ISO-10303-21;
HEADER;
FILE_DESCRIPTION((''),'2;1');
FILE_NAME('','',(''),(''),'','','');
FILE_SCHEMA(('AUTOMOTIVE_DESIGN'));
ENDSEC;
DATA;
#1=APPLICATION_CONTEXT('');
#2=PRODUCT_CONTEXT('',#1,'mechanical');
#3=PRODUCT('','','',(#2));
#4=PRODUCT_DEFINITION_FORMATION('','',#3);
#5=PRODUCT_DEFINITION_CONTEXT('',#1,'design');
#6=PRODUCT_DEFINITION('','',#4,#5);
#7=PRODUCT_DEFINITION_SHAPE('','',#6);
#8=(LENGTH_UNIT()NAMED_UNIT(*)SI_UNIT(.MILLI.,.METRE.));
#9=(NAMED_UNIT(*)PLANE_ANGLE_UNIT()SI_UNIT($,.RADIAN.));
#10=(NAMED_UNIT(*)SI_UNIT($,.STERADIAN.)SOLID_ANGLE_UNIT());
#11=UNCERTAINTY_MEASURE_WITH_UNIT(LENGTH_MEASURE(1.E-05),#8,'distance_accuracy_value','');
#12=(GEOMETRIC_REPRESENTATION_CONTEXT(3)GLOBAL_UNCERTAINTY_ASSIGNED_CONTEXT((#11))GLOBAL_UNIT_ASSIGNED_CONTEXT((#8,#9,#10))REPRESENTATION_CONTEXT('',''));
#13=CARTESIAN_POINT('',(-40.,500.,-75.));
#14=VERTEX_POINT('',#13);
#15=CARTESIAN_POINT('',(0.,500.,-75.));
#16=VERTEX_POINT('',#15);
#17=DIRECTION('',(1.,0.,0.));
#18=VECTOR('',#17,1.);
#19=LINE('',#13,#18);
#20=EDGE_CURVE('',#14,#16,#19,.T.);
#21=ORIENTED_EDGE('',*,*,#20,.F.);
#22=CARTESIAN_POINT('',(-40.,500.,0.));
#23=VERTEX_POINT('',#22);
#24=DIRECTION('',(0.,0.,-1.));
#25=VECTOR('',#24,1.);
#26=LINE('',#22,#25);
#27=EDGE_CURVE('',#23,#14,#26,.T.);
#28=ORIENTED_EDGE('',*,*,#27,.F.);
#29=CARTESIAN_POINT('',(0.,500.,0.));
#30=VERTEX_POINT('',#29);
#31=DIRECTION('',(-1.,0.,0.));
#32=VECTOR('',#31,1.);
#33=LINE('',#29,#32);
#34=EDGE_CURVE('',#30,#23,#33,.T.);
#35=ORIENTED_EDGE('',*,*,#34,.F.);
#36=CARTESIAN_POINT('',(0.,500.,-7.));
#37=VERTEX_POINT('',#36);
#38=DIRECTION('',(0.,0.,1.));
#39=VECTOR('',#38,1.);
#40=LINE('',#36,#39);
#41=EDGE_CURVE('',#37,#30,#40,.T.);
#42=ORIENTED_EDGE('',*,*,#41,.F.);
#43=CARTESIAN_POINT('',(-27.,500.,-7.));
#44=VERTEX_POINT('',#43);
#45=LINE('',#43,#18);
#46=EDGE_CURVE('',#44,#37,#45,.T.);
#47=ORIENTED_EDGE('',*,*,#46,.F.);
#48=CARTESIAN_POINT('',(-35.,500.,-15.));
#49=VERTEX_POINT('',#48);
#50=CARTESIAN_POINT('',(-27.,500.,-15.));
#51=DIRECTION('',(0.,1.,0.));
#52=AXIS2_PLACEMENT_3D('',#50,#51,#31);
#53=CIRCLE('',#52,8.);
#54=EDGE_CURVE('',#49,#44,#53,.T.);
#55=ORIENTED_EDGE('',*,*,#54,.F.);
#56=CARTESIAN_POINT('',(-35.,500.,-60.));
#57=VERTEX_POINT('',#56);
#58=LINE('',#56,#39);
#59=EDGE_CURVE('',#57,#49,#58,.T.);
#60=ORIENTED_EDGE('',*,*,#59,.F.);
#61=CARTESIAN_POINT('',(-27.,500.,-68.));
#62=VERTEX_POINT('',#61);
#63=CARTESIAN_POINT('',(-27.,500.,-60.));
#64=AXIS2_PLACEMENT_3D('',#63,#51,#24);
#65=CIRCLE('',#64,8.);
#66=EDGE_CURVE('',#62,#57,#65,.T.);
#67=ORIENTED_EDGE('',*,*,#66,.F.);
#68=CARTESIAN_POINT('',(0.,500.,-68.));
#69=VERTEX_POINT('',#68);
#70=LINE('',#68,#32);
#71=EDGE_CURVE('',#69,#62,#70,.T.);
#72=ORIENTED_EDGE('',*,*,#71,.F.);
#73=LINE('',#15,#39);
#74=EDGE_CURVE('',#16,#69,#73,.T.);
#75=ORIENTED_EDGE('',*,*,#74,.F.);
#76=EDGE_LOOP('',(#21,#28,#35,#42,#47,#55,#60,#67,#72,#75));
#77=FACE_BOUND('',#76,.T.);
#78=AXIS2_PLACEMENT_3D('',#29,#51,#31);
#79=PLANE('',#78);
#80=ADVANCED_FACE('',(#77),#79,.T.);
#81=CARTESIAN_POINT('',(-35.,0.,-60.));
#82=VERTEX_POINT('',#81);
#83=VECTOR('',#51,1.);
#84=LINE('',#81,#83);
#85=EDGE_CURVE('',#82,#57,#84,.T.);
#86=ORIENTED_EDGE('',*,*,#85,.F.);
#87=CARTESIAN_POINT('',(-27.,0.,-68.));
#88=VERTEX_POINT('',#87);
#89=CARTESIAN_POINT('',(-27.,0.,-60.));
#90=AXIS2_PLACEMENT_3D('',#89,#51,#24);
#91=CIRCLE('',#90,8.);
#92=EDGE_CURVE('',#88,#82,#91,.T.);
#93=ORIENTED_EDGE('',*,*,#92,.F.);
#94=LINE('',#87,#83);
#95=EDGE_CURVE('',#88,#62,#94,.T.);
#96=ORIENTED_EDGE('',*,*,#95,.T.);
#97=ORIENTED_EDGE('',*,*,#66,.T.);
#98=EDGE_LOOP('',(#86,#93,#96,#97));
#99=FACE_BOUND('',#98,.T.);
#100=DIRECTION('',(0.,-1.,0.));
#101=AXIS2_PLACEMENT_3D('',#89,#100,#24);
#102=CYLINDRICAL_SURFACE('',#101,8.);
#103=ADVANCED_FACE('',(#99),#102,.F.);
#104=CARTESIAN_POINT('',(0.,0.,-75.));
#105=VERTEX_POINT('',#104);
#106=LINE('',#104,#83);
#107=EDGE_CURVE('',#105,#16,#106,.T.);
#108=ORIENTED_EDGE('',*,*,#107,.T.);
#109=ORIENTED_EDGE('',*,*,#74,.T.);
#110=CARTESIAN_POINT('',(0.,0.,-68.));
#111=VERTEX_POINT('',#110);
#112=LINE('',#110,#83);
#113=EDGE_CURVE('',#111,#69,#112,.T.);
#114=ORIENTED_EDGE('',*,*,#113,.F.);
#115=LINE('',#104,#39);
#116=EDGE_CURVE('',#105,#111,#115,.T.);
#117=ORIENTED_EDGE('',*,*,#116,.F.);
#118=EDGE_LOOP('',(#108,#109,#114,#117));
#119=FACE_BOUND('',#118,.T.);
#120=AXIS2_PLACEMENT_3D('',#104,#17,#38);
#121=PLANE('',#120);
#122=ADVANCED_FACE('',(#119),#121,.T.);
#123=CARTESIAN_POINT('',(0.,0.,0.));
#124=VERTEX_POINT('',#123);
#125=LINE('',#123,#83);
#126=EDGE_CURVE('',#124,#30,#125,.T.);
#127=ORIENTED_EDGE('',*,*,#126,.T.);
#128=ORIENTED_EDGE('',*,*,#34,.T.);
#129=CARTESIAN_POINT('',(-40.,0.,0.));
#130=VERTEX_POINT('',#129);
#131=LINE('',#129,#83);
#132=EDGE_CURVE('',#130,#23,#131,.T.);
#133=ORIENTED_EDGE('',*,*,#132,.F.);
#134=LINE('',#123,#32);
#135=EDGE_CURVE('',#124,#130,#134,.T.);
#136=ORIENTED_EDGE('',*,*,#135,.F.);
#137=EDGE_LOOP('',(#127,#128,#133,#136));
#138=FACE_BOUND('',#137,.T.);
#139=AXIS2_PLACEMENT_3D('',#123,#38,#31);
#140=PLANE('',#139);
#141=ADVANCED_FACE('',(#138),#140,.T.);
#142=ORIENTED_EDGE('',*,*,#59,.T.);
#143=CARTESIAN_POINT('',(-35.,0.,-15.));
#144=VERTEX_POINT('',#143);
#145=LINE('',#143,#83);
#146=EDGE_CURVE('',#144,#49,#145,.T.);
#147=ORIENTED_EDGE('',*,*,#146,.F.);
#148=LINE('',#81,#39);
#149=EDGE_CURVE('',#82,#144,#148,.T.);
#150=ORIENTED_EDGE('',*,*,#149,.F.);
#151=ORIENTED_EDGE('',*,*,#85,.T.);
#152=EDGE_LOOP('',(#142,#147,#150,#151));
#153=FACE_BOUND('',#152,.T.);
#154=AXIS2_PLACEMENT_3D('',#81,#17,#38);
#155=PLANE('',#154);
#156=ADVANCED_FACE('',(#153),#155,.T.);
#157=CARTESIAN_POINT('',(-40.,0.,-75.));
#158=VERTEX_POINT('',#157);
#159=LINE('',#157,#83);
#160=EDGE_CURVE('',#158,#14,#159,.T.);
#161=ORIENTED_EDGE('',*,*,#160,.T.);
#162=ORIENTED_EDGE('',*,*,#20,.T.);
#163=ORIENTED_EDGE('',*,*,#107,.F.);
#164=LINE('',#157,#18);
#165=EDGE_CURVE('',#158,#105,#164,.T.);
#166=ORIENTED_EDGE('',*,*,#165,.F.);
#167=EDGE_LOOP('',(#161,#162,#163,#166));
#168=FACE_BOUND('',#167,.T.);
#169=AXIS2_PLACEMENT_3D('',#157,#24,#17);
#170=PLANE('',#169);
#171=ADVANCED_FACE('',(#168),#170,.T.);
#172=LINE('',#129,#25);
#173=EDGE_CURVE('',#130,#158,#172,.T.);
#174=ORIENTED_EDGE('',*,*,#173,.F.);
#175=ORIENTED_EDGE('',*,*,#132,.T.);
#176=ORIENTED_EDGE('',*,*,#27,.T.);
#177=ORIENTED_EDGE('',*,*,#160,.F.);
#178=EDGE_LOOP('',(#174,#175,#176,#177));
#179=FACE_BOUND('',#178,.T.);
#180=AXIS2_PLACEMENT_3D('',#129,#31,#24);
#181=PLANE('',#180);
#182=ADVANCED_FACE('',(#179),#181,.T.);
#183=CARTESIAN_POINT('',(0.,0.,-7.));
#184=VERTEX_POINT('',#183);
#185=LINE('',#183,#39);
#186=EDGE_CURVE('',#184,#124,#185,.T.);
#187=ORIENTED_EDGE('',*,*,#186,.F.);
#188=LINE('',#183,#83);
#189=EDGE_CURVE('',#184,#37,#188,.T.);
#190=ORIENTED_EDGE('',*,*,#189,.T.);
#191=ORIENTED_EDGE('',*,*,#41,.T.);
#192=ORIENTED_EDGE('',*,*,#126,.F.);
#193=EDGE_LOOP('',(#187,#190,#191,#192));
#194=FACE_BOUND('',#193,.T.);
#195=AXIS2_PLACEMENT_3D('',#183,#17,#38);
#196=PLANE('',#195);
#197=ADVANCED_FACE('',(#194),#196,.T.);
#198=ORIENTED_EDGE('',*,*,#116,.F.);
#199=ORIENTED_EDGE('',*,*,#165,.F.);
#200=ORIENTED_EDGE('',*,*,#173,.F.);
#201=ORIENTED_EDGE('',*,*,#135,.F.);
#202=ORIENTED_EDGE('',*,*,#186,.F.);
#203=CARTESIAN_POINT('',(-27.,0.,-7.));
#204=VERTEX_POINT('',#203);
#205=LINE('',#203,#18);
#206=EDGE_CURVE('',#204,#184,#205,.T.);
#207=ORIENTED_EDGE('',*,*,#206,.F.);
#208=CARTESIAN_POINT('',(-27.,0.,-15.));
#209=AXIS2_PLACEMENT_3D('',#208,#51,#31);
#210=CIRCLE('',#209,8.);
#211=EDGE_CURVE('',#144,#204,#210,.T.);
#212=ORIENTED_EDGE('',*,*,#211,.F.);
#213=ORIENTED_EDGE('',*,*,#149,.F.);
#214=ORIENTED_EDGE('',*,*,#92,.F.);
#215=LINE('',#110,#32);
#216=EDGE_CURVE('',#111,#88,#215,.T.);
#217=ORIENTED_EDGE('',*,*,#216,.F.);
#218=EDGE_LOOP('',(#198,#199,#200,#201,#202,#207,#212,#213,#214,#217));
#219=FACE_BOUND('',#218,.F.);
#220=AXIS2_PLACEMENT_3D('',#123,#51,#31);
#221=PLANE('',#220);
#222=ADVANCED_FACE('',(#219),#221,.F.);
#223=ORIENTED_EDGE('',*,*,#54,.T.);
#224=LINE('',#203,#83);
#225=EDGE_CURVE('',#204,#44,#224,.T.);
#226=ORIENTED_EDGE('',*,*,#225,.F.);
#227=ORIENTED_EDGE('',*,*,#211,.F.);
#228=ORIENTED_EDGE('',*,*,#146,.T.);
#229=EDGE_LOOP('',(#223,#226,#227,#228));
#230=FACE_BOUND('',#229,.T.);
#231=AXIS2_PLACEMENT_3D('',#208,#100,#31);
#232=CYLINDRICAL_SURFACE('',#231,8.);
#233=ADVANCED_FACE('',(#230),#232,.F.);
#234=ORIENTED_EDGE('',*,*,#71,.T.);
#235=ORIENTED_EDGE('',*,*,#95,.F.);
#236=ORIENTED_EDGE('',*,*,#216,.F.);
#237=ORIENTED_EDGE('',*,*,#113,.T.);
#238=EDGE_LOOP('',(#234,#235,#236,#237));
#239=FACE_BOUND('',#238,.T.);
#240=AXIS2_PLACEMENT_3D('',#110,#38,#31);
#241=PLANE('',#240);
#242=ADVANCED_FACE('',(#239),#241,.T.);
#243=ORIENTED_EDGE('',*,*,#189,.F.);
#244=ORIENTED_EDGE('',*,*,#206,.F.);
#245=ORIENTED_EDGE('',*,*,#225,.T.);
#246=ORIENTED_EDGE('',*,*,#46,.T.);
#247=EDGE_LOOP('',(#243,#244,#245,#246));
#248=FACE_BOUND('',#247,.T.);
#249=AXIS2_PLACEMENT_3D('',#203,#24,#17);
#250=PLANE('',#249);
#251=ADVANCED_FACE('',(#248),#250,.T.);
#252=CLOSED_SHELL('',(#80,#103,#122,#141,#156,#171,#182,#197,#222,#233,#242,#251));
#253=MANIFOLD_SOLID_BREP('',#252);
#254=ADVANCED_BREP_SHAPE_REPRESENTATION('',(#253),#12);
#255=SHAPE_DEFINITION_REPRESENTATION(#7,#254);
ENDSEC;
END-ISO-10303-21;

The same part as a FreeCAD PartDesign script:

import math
import FreeCAD as App
import Part
import Sketcher

doc = App.newDocument("Part")
body = doc.addObject("PartDesign::Body", "Body")

# Sketch on XZ plane
sketch1 = body.newObject("Sketcher::SketchObject", "Sketch")
sketch1.AttachmentSupport = (doc.getObject("XZ_Plane"), [""])
sketch1.MapMode = "FlatFace"
sketch1.addGeometry(Part.LineSegment(App.Vector(-40, 0, 0), App.Vector(0, 0, 0)), False)
sketch1.addGeometry(Part.LineSegment(App.Vector(0, 0, 0), App.Vector(0, -7, 0)), False)
sketch1.addGeometry(Part.LineSegment(App.Vector(0, -7, 0), App.Vector(-27, -7, 0)), False)
sketch1.addGeometry(Part.ArcOfCircle(Part.Circle(App.Vector(-27, -15, 0), App.Vector(0, 0, 1), 8), math.radians(90), math.radians(180)), False)
sketch1.addGeometry(Part.LineSegment(App.Vector(-35, -15, 0), App.Vector(-35, -60, 0)), False)
sketch1.addGeometry(Part.ArcOfCircle(Part.Circle(App.Vector(-27, -60, 0), App.Vector(0, 0, 1), 8), math.radians(180), math.radians(270)), False)
sketch1.addGeometry(Part.LineSegment(App.Vector(-27, -68, 0), App.Vector(0, -68, 0)), False)
sketch1.addGeometry(Part.LineSegment(App.Vector(0, -68, 0), App.Vector(0, -75, 0)), False)
sketch1.addGeometry(Part.LineSegment(App.Vector(0, -75, 0), App.Vector(-40, -75, 0)), False)
sketch1.addGeometry(Part.LineSegment(App.Vector(-40, -75, 0), App.Vector(-40, 0, 0)), False)
sketch1.addConstraint(Sketcher.Constraint("Coincident", 0, 2, 1, 1))
sketch1.addConstraint(Sketcher.Constraint("Coincident", 1, 2, 2, 1))
sketch1.addConstraint(Sketcher.Constraint("Tangent", 2, 2, 3, 1))
sketch1.addConstraint(Sketcher.Constraint("Tangent", 3, 2, 4, 1))
sketch1.addConstraint(Sketcher.Constraint("Tangent", 4, 2, 5, 1))
sketch1.addConstraint(Sketcher.Constraint("Tangent", 5, 2, 6, 1))
sketch1.addConstraint(Sketcher.Constraint("Coincident", 6, 2, 7, 1))
sketch1.addConstraint(Sketcher.Constraint("Coincident", 7, 2, 8, 1))
sketch1.addConstraint(Sketcher.Constraint("Coincident", 8, 2, 9, 1))
sketch1.addConstraint(Sketcher.Constraint("Coincident", 9, 2, 0, 1))
sketch1.addConstraint(Sketcher.Constraint("Horizontal", 0))
sketch1.addConstraint(Sketcher.Constraint("Vertical", 1))
sketch1.addConstraint(Sketcher.Constraint("Horizontal", 2))
sketch1.addConstraint(Sketcher.Constraint("Vertical", 4))
sketch1.addConstraint(Sketcher.Constraint("Horizontal", 6))
sketch1.addConstraint(Sketcher.Constraint("Vertical", 7))
sketch1.addConstraint(Sketcher.Constraint("Horizontal", 8))
sketch1.addConstraint(Sketcher.Constraint("Vertical", 9))
sketch1.addConstraint(Sketcher.Constraint("Coincident", 0, 2, -1, 1))
sketch1.addConstraint(Sketcher.Constraint("Equal", 3, 5))
sketch1.addConstraint(Sketcher.Constraint("PointOnObject", 6, 2, -2))
sketch1.addConstraint(Sketcher.Constraint("Equal", 1, 7))
sketch1.addConstraint(Sketcher.Constraint("Radius", 3, 8.0))
sketch1.addConstraint(Sketcher.Constraint("DistanceX", 0, 1, 0, 2, 40.0))
sketch1.addConstraint(Sketcher.Constraint("DistanceY", 1, 2, 1, 1, 7.0))
sketch1.addConstraint(Sketcher.Constraint("DistanceY", 9, 1, 9, 2, 75.0))
sketch1.addConstraint(Sketcher.Constraint("DistanceX", 3, 2, -1, 1, 35.0))
pad1 = body.newObject("PartDesign::Pad", "Pad")
pad1.Profile = sketch1
pad1.Length = 500
pad1.Reversed = True

doc.recompute()
